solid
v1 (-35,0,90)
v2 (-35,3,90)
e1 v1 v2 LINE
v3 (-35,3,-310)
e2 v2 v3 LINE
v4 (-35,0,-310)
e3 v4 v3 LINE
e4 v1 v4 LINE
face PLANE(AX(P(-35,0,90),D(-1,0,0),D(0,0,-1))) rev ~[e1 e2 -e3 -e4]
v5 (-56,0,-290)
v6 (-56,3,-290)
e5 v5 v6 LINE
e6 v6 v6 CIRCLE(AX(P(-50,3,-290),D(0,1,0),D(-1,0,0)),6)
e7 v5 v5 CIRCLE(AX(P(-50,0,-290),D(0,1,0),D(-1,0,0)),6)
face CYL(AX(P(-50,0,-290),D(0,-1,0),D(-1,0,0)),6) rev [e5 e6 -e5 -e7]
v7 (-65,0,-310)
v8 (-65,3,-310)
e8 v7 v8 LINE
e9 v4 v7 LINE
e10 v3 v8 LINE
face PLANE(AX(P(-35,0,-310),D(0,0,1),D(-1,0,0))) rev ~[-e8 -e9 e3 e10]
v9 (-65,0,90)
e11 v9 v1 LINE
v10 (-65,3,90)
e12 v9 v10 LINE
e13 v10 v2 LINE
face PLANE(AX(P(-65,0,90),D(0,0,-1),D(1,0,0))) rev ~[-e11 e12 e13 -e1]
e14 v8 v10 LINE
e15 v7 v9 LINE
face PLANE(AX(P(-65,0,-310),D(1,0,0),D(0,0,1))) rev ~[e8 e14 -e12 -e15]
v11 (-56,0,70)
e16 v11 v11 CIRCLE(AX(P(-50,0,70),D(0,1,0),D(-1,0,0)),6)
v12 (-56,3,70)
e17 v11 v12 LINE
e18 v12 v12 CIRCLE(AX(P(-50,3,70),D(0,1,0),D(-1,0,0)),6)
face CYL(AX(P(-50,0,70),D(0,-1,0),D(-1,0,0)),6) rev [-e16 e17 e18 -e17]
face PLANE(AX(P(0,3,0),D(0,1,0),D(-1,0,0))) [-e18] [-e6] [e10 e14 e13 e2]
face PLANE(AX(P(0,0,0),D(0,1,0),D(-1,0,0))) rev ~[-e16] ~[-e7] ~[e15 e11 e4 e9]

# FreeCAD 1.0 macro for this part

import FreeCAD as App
import Part
import Sketcher
from FreeCAD import Vector
Q = App.Units.Quantity

doc = App.newDocument("Part")
body = doc.addObject("PartDesign::Body", "Body")

# Sketch on XZ plane
sketch1 = doc.addObject("Sketcher::SketchObject", "Sketch")
body.addObject(sketch1)
sketch1.AttachmentSupport = (doc.XZ_Plane, [""])
sketch1.MapMode = "FlatFace"
sketch1.addGeometry([
    Part.LineSegment(Vector(-65, -310, 0), Vector(-65, 90, 0)),  # 0
    Part.LineSegment(Vector(-65, 90, 0), Vector(-35, 90, 0)),  # 1
    Part.LineSegment(Vector(-35, 90, 0), Vector(-35, -310, 0)),  # 2
    Part.LineSegment(Vector(-35, -310, 0), Vector(-65, -310, 0)),  # 3
    Part.Circle(Vector(-50, -290, 0), Vector(0, 0, 1), 6),  # 4
    Part.Circle(Vector(-50, 70, 0), Vector(0, 0, 1), 6),  # 5
], False)
sketch1.addConstraint([
    Sketcher.Constraint("Coincident", 0, 2, 1, 1),
    Sketcher.Constraint("Coincident", 1, 2, 2, 1),
    Sketcher.Constraint("Coincident", 2, 2, 3, 1),
    Sketcher.Constraint("Coincident", 3, 2, 0, 1),
    Sketcher.Constraint("Vertical", 0),
    Sketcher.Constraint("Horizontal", 1),
    Sketcher.Constraint("Vertical", 2),
    Sketcher.Constraint("Horizontal", 3),
    Sketcher.Constraint("Equal", 4, 5),
    Sketcher.Constraint("Vertical", 4, 3, 5, 3),
    Sketcher.Constraint("Diameter", 4, Q("12 mm")),
    Sketcher.Constraint("DistanceX", 1, 1, 1, 2, Q("30 mm")),
    Sketcher.Constraint("DistanceY", 0, 1, 0, 2, Q("400 mm")),
    Sketcher.Constraint("DistanceY", -1, 1, 0, 2, Q("90 mm")),
    Sketcher.Constraint("DistanceX", 1, 2, -1, 1, Q("35 mm")),
    Sketcher.Constraint("DistanceY", 5, 3, 0, 2, Q("20 mm")),
    Sketcher.Constraint("DistanceY", 2, 2, 4, 3, Q("20 mm")),
    Sketcher.Constraint("DistanceX", 4, 3, -1, 1, Q("50 mm")),
])
pad1 = doc.addObject("PartDesign::Pad", "Pad")
body.addObject(pad1)
pad1.Profile = sketch1
pad1.Length = 3
pad1.Reversed = True

doc.recompute()
